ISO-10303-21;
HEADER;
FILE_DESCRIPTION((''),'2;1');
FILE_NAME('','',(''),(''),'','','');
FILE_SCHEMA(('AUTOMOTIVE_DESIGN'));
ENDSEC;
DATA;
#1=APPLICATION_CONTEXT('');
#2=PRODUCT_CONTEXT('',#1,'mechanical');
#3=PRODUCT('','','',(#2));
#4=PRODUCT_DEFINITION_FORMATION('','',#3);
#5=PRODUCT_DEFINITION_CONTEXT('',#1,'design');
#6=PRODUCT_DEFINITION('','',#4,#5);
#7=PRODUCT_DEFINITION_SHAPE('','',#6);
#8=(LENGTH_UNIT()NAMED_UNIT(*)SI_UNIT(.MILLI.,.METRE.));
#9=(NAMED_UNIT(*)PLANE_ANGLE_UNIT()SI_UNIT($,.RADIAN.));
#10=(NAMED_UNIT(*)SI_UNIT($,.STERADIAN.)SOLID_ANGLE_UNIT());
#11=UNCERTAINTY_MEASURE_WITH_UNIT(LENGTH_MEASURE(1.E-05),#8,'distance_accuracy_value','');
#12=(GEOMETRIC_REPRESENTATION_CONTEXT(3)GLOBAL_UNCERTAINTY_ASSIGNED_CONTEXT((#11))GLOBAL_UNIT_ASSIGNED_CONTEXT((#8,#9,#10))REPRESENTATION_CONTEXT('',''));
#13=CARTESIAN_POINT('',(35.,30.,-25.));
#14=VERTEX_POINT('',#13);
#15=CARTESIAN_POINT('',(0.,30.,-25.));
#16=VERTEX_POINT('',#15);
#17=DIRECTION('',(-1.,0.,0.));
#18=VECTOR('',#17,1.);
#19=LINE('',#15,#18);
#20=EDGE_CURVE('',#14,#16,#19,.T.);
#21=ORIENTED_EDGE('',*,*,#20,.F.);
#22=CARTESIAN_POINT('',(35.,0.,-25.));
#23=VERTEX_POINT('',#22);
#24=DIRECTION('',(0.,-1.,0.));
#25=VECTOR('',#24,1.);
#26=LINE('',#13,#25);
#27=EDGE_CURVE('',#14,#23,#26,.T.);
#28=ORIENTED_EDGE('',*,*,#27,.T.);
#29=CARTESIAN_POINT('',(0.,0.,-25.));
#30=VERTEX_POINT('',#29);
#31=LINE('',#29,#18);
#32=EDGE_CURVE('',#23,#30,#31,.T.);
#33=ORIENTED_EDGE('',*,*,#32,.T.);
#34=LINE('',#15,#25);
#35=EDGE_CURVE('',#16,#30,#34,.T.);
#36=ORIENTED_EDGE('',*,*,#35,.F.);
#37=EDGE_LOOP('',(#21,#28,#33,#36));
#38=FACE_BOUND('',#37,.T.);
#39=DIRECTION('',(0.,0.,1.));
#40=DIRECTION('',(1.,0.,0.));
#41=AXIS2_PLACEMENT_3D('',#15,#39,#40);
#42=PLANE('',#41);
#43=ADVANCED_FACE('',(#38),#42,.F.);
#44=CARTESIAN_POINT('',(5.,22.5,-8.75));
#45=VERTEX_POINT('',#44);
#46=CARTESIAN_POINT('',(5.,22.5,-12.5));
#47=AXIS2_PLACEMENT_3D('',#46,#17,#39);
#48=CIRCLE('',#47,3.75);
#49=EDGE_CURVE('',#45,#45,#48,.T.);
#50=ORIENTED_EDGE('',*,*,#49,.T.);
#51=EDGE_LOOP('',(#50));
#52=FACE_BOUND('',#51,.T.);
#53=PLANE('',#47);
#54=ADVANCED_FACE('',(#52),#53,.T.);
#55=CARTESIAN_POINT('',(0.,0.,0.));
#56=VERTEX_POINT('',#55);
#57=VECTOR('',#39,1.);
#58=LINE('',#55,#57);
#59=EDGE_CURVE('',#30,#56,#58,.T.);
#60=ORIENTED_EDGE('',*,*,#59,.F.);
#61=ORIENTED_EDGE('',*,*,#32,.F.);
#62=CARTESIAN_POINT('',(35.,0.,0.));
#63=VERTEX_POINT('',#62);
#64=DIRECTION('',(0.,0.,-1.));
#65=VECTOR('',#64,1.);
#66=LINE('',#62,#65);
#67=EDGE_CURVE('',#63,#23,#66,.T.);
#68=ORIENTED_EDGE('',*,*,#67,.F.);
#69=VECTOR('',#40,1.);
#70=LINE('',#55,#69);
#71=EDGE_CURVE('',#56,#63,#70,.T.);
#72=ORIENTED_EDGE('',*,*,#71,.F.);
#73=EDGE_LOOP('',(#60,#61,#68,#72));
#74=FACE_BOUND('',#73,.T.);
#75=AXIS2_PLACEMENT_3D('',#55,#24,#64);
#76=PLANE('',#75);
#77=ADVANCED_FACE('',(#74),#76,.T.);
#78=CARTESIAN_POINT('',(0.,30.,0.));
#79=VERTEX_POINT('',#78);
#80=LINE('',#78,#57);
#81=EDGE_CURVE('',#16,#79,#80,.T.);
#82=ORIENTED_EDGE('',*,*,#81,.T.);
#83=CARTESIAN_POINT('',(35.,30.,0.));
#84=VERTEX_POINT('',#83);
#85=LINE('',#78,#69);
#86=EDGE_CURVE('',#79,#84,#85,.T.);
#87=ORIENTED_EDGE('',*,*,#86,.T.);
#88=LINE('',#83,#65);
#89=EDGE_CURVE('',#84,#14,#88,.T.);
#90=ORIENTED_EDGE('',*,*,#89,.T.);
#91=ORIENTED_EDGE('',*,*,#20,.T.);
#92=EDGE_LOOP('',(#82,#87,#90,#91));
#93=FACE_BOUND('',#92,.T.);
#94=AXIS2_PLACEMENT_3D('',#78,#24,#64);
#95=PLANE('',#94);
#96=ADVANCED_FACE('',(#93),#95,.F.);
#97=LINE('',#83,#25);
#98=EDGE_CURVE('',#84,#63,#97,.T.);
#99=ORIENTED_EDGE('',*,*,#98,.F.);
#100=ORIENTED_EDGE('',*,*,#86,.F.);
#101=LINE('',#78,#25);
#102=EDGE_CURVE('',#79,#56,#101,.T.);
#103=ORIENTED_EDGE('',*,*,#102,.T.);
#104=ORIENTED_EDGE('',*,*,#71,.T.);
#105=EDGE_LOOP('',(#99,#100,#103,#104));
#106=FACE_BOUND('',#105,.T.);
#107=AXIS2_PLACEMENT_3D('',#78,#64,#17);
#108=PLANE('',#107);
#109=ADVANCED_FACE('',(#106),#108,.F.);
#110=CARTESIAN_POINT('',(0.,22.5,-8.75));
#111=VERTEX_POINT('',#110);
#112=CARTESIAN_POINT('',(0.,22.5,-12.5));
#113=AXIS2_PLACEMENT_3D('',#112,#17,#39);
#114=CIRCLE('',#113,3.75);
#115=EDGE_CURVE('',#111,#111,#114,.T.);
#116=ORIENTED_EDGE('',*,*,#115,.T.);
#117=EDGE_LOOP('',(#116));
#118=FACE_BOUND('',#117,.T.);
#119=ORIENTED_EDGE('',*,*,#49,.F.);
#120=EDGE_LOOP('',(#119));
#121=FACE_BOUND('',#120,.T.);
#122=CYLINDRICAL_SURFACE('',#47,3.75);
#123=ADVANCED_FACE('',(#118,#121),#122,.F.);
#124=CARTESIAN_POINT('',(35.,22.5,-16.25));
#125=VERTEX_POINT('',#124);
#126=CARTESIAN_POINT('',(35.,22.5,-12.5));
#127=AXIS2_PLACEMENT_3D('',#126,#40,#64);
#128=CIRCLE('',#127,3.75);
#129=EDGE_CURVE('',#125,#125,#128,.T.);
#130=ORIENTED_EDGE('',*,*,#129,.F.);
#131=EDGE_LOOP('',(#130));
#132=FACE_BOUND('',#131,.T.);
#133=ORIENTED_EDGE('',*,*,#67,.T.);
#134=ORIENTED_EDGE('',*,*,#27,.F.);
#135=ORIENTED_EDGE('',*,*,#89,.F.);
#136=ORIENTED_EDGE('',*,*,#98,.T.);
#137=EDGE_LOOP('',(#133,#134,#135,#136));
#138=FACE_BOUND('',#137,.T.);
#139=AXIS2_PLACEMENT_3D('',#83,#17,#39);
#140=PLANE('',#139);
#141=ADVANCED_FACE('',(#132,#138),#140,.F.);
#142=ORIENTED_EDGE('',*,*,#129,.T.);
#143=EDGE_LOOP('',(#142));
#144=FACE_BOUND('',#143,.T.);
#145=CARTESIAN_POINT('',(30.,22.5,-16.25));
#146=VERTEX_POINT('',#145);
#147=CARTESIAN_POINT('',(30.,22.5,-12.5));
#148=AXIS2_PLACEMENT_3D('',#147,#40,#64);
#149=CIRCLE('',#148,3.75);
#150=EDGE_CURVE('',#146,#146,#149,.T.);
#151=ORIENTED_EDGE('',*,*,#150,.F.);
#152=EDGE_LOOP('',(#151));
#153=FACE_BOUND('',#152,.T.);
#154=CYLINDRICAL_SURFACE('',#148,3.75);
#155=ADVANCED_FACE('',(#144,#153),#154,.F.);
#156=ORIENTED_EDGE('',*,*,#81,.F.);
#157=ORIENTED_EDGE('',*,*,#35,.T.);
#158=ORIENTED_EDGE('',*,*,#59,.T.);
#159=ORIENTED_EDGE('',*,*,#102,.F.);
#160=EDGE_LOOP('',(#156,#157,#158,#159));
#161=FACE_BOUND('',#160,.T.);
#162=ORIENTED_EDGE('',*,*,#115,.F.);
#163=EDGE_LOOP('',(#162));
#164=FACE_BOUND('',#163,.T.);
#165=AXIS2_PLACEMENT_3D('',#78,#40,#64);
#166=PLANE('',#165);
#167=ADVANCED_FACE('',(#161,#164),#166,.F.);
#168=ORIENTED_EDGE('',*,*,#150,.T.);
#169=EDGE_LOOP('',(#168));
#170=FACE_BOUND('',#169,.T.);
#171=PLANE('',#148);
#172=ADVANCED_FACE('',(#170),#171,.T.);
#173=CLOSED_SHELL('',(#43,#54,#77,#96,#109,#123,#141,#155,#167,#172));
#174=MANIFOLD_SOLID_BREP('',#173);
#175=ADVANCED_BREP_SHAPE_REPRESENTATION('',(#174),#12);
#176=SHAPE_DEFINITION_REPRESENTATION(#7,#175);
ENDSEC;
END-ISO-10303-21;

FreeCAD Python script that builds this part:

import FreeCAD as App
import Part
import Sketcher

V = App.Vector


def add_polygon(sketch, points):
    """Adds a closed chain of lines whose ends are joined by coincident constraints."""
    first, n = sketch.GeometryCount, len(points)
    for a, b in zip(points, points[1:] + points[:1]):
        sketch.addGeometry(Part.LineSegment(App.Vector(*a, 0), App.Vector(*b, 0)), False)
    for i in range(n):
        sketch.addConstraint(Sketcher.Constraint("Coincident", first + i, 2, first + (i + 1) % n, 1))

doc = App.newDocument("Part")
body = doc.addObject("PartDesign::Body", "Body")

sketch1 = body.newObject("Sketcher::SketchObject", "Sketch")
sketch1.AttachmentSupport = (doc.getObject("XZ_Plane"), [""])
sketch1.MapMode = "FlatFace"
add_polygon(sketch1, [(0, -25), (0, 0), (35, 0), (35, -25)])
sketch1.addConstraint(Sketcher.Constraint("Vertical", 0))
sketch1.addConstraint(Sketcher.Constraint("Horizontal", 1))
sketch1.addConstraint(Sketcher.Constraint("Vertical", 2))
sketch1.addConstraint(Sketcher.Constraint("Horizontal", 3))
sketch1.addConstraint(Sketcher.Constraint("Coincident", 0, 2, -1, 1))
sketch1.addConstraint(Sketcher.Constraint("DistanceX", 1, 1, 1, 2, 35.0))
sketch1.addConstraint(Sketcher.Constraint("DistanceY", 0, 1, 0, 2, 25.0))
pad1 = body.newObject("PartDesign::Pad", "Pad")
pad1.Profile = sketch1
pad1.Length = 30
pad1.Reversed = True

sketch2 = body.newObject("Sketcher::SketchObject", "Sketch001")
sketch2.AttachmentSupport = (doc.getObject("YZ_Plane"), [""])
sketch2.MapMode = "FlatFace"
sketch2.AttachmentOffset = App.Placement(V(0, 0, 35), App.Rotation())
sketch2.addGeometry(Part.Circle(V(22.5, -12.5, 0), V(0, 0, 1), 3.75), False)
sketch2.addConstraint(Sketcher.Constraint("Diameter", 0, 7.5))
sketch2.addConstraint(Sketcher.Constraint("DistanceX", -1, 1, 0, 3, 22.5))
sketch2.addConstraint(Sketcher.Constraint("DistanceY", 0, 3, -1, 1, 12.5))
pocket1 = body.newObject("PartDesign::Pocket", "Pocket")
pocket1.Profile = sketch2
pocket1.Length = 5

sketch3 = body.newObject("Sketcher::SketchObject", "Sketch002")
sketch3.AttachmentSupport = (doc.getObject("YZ_Plane"), [""])
sketch3.MapMode = "FlatFace"
sketch3.addGeometry(Part.Circle(V(22.5, -12.5, 0), V(0, 0, 1), 3.75), False)
sketch3.addConstraint(Sketcher.Constraint("Diameter", 0, 7.5))
sketch3.addConstraint(Sketcher.Constraint("DistanceX", -1, 1, 0, 3, 22.5))
sketch3.addConstraint(Sketcher.Constraint("DistanceY", 0, 3, -1, 1, 12.5))
pocket2 = body.newObject("PartDesign::Pocket", "Pocket001")
pocket2.Profile = sketch3
pocket2.Length = 5
pocket2.Reversed = True

doc.recompute()
